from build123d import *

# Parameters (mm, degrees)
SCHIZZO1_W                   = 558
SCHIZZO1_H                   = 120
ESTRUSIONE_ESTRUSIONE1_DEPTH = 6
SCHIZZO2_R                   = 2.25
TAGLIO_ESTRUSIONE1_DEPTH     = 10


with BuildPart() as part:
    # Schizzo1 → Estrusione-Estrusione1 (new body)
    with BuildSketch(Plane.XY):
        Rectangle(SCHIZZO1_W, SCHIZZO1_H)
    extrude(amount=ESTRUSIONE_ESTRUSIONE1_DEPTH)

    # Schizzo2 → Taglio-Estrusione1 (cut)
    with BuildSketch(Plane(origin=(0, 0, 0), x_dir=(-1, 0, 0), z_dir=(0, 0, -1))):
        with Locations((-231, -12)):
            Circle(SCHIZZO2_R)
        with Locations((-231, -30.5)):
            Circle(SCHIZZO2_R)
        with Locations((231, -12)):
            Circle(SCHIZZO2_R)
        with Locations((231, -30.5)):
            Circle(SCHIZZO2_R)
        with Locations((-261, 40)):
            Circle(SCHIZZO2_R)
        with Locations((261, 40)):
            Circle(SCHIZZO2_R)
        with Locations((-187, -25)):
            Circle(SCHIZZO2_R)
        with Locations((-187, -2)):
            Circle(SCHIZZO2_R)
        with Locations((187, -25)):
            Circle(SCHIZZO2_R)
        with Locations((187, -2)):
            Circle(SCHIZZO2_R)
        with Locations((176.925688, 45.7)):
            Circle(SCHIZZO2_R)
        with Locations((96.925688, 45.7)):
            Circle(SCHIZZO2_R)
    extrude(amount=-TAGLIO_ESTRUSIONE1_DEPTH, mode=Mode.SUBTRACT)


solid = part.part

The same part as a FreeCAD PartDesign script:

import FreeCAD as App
import Part
import Sketcher
from FreeCAD import Vector
Q = App.Units.Quantity

doc = App.newDocument("Part")
params = doc.addObject("Spreadsheet::Sheet", "Params")
for row, (alias, value) in enumerate([
    ("sketch1_width", "558 mm"),
    ("sketch1_height", "120 mm"),
    ("pad1_length", "6 mm"),
    ("sketch2_diameter", "4.5 mm"),
    ("pocket1_length", "10 mm"),
], start=1):
    params.set(f"A{row}", alias)
    params.set(f"B{row}", "=" + value)
    params.setAlias(f"B{row}", alias)

body = doc.addObject("PartDesign::Body", "Body")

sketch1 = doc.addObject("Sketcher::SketchObject", "Sketch")
body.addObject(sketch1)
sketch1.AttachmentSupport = (doc.XY_Plane, [""])
sketch1.MapMode = "FlatFace"
sketch1.addGeometry(Part.LineSegment(Vector(-279, 60, 0), Vector(-279, -60, 0)), False)
sketch1.addGeometry(Part.LineSegment(Vector(-279, -60, 0), Vector(279, -60, 0)), False)
sketch1.addGeometry(Part.LineSegment(Vector(279, -60, 0), Vector(279, 60, 0)), False)
sketch1.addGeometry(Part.LineSegment(Vector(279, 60, 0), Vector(-279, 60, 0)), False)
sketch1.addConstraint(Sketcher.Constraint("Coincident", 0, 2, 1, 1))
sketch1.addConstraint(Sketcher.Constraint("Coincident", 1, 2, 2, 1))
sketch1.addConstraint(Sketcher.Constraint("Coincident", 2, 2, 3, 1))
sketch1.addConstraint(Sketcher.Constraint("Coincident", 3, 2, 0, 1))
sketch1.addConstraint(Sketcher.Constraint("Vertical", 0))
sketch1.addConstraint(Sketcher.Constraint("Horizontal", 1))
sketch1.addConstraint(Sketcher.Constraint("Vertical", 2))
sketch1.addConstraint(Sketcher.Constraint("Horizontal", 3))
sketch1.addConstraint(Sketcher.Constraint("Symmetric", 0, 2, 2, 2, -1, 1))
sketch1.addConstraint(Sketcher.Constraint("DistanceX", 1, 1, 1, 2, Q("558 mm")))
sketch1.addConstraint(Sketcher.Constraint("DistanceY", 0, 2, 0, 1, Q("120 mm")))
sketch1.setExpression("Constraints[9]", "Params.sketch1_width")
sketch1.setExpression("Constraints[10]", "Params.sketch1_height")
pad1 = doc.addObject("PartDesign::Pad", "Pad")
body.addObject(pad1)
pad1.Profile = sketch1
pad1.setExpression("Length", "Params.pad1_length")

sketch2 = doc.addObject("Sketcher::SketchObject", "Sketch001")
body.addObject(sketch2)
sketch2.AttachmentSupport = (doc.XY_Plane, [""])
sketch2.MapMode = "FlatFace"
sketch2.addGeometry(Part.Circle(Vector(231, -12, 0), Vector(0, 0, 1), 2.2), False)
sketch2.addGeometry(Part.Circle(Vector(231, -30.5, 0), Vector(0, 0, 1), 2.2), False)
sketch2.addGeometry(Part.Circle(Vector(-231, -12, 0), Vector(0, 0, 1), 2.2), False)
sketch2.addGeometry(Part.Circle(Vector(-231, -30.5, 0), Vector(0, 0, 1), 2.2), False)
sketch2.addGeometry(Part.Circle(Vector(261, 40, 0), Vector(0, 0, 1), 2.2), False)
sketch2.addGeometry(Part.Circle(Vector(-261, 40, 0), Vector(0, 0, 1), 2.2), False)
sketch2.addGeometry(Part.Circle(Vector(187, -25, 0), Vector(0, 0, 1), 2.2), False)
sketch2.addGeometry(Part.Circle(Vector(187, -2, 0), Vector(0, 0, 1), 2.2), False)
sketch2.addGeometry(Part.Circle(Vector(-187, -25, 0), Vector(0, 0, 1), 2.2), False)
sketch2.addGeometry(Part.Circle(Vector(-187, -2, 0), Vector(0, 0, 1), 2.2), False)
sketch2.addGeometry(Part.Circle(Vector(-176.9, 45.7, 0), Vector(0, 0, 1), 2.2), False)
sketch2.addGeometry(Part.Circle(Vector(-96.9, 45.7, 0), Vector(0, 0, 1), 2.2), False)
sketch2.addConstraint(Sketcher.Constraint("Equal", 0, 1))
sketch2.addConstraint(Sketcher.Constraint("Equal", 1, 2))
sketch2.addConstraint(Sketcher.Constraint("Equal", 2, 3))
sketch2.addConstraint(Sketcher.Constraint("Equal", 3, 4))
sketch2.addConstraint(Sketcher.Constraint("Equal", 4, 5))
sketch2.addConstraint(Sketcher.Constraint("Equal", 5, 6))
sketch2.addConstraint(Sketcher.Constraint("Equal", 6, 7))
sketch2.addConstraint(Sketcher.Constraint("Equal", 7, 8))
sketch2.addConstraint(Sketcher.Constraint("Equal", 8, 9))
sketch2.addConstraint(Sketcher.Constraint("Equal", 9, 10))
sketch2.addConstraint(Sketcher.Constraint("Equal", 10, 11))
sketch2.addConstraint(Sketcher.Constraint("Symmetric", 0, 3, 2, 3, -2))
sketch2.addConstraint(Sketcher.Constraint("Symmetric", 1, 3, 3, 3, -2))
sketch2.addConstraint(Sketcher.Constraint("Symmetric", 4, 3, 5, 3, -2))
sketch2.addConstraint(Sketcher.Constraint("Symmetric", 6, 3, 8, 3, -2))
sketch2.addConstraint(Sketcher.Constraint("Symmetric", 7, 3, 9, 3, -2))
sketch2.addConstraint(Sketcher.Constraint("Horizontal", 10, 3, 11, 3))
sketch2.addConstraint(Sketcher.Constraint("Vertical", 0, 3, 1, 3))
sketch2.addConstraint(Sketcher.Constraint("Vertical", 6, 3, 7, 3))
sketch2.addConstraint(Sketcher.Constraint("Diameter", 0, Q("4.5 mm")))
sketch2.addConstraint(Sketcher.Constraint("DistanceX", -1, 1, 0, 3, Q("231 mm")))
sketch2.addConstraint(Sketcher.Constraint("DistanceY", 0, 3, -1, 1, Q("12 mm")))
sketch2.addConstraint(Sketcher.Constraint("DistanceX", -1, 1, 4, 3, Q("261 mm")))
sketch2.addConstraint(Sketcher.Constraint("DistanceY", -1, 1, 4, 3, Q("40 mm")))
sketch2.addConstraint(Sketcher.Constraint("DistanceX", -1, 1, 6, 3, Q("187 mm")))
sketch2.addConstraint(Sketcher.Constraint("DistanceY", 6, 3, -1, 1, Q("25 mm")))
sketch2.addConstraint(Sketcher.Constraint("DistanceY", 7, 3, -1, 1, Q("2 mm")))
sketch2.addConstraint(Sketcher.Constraint("DistanceX", 10, 3, 11, 3, Q("80 mm")))
sketch2.addConstraint(Sketcher.Constraint("DistanceY", 1, 3, -1, 1, Q("30.5 mm")))
sketch2.addConstraint(Sketcher.Constraint("DistanceY", -1, 1, 10, 3, Q("45.7 mm")))
sketch2.addConstraint(Sketcher.Constraint("DistanceX", 10, 3, -1, 1, Q("176.925688 mm")))
sketch2.setExpression("Constraints[19]", "Params.sketch2_diameter")
pocket1 = doc.addObject("PartDesign::Pocket", "Pocket")
body.addObject(pocket1)
pocket1.Profile = sketch2
pocket1.setExpression("Length", "Params.pocket1_length")
pocket1.Reversed = True

doc.recompute()
